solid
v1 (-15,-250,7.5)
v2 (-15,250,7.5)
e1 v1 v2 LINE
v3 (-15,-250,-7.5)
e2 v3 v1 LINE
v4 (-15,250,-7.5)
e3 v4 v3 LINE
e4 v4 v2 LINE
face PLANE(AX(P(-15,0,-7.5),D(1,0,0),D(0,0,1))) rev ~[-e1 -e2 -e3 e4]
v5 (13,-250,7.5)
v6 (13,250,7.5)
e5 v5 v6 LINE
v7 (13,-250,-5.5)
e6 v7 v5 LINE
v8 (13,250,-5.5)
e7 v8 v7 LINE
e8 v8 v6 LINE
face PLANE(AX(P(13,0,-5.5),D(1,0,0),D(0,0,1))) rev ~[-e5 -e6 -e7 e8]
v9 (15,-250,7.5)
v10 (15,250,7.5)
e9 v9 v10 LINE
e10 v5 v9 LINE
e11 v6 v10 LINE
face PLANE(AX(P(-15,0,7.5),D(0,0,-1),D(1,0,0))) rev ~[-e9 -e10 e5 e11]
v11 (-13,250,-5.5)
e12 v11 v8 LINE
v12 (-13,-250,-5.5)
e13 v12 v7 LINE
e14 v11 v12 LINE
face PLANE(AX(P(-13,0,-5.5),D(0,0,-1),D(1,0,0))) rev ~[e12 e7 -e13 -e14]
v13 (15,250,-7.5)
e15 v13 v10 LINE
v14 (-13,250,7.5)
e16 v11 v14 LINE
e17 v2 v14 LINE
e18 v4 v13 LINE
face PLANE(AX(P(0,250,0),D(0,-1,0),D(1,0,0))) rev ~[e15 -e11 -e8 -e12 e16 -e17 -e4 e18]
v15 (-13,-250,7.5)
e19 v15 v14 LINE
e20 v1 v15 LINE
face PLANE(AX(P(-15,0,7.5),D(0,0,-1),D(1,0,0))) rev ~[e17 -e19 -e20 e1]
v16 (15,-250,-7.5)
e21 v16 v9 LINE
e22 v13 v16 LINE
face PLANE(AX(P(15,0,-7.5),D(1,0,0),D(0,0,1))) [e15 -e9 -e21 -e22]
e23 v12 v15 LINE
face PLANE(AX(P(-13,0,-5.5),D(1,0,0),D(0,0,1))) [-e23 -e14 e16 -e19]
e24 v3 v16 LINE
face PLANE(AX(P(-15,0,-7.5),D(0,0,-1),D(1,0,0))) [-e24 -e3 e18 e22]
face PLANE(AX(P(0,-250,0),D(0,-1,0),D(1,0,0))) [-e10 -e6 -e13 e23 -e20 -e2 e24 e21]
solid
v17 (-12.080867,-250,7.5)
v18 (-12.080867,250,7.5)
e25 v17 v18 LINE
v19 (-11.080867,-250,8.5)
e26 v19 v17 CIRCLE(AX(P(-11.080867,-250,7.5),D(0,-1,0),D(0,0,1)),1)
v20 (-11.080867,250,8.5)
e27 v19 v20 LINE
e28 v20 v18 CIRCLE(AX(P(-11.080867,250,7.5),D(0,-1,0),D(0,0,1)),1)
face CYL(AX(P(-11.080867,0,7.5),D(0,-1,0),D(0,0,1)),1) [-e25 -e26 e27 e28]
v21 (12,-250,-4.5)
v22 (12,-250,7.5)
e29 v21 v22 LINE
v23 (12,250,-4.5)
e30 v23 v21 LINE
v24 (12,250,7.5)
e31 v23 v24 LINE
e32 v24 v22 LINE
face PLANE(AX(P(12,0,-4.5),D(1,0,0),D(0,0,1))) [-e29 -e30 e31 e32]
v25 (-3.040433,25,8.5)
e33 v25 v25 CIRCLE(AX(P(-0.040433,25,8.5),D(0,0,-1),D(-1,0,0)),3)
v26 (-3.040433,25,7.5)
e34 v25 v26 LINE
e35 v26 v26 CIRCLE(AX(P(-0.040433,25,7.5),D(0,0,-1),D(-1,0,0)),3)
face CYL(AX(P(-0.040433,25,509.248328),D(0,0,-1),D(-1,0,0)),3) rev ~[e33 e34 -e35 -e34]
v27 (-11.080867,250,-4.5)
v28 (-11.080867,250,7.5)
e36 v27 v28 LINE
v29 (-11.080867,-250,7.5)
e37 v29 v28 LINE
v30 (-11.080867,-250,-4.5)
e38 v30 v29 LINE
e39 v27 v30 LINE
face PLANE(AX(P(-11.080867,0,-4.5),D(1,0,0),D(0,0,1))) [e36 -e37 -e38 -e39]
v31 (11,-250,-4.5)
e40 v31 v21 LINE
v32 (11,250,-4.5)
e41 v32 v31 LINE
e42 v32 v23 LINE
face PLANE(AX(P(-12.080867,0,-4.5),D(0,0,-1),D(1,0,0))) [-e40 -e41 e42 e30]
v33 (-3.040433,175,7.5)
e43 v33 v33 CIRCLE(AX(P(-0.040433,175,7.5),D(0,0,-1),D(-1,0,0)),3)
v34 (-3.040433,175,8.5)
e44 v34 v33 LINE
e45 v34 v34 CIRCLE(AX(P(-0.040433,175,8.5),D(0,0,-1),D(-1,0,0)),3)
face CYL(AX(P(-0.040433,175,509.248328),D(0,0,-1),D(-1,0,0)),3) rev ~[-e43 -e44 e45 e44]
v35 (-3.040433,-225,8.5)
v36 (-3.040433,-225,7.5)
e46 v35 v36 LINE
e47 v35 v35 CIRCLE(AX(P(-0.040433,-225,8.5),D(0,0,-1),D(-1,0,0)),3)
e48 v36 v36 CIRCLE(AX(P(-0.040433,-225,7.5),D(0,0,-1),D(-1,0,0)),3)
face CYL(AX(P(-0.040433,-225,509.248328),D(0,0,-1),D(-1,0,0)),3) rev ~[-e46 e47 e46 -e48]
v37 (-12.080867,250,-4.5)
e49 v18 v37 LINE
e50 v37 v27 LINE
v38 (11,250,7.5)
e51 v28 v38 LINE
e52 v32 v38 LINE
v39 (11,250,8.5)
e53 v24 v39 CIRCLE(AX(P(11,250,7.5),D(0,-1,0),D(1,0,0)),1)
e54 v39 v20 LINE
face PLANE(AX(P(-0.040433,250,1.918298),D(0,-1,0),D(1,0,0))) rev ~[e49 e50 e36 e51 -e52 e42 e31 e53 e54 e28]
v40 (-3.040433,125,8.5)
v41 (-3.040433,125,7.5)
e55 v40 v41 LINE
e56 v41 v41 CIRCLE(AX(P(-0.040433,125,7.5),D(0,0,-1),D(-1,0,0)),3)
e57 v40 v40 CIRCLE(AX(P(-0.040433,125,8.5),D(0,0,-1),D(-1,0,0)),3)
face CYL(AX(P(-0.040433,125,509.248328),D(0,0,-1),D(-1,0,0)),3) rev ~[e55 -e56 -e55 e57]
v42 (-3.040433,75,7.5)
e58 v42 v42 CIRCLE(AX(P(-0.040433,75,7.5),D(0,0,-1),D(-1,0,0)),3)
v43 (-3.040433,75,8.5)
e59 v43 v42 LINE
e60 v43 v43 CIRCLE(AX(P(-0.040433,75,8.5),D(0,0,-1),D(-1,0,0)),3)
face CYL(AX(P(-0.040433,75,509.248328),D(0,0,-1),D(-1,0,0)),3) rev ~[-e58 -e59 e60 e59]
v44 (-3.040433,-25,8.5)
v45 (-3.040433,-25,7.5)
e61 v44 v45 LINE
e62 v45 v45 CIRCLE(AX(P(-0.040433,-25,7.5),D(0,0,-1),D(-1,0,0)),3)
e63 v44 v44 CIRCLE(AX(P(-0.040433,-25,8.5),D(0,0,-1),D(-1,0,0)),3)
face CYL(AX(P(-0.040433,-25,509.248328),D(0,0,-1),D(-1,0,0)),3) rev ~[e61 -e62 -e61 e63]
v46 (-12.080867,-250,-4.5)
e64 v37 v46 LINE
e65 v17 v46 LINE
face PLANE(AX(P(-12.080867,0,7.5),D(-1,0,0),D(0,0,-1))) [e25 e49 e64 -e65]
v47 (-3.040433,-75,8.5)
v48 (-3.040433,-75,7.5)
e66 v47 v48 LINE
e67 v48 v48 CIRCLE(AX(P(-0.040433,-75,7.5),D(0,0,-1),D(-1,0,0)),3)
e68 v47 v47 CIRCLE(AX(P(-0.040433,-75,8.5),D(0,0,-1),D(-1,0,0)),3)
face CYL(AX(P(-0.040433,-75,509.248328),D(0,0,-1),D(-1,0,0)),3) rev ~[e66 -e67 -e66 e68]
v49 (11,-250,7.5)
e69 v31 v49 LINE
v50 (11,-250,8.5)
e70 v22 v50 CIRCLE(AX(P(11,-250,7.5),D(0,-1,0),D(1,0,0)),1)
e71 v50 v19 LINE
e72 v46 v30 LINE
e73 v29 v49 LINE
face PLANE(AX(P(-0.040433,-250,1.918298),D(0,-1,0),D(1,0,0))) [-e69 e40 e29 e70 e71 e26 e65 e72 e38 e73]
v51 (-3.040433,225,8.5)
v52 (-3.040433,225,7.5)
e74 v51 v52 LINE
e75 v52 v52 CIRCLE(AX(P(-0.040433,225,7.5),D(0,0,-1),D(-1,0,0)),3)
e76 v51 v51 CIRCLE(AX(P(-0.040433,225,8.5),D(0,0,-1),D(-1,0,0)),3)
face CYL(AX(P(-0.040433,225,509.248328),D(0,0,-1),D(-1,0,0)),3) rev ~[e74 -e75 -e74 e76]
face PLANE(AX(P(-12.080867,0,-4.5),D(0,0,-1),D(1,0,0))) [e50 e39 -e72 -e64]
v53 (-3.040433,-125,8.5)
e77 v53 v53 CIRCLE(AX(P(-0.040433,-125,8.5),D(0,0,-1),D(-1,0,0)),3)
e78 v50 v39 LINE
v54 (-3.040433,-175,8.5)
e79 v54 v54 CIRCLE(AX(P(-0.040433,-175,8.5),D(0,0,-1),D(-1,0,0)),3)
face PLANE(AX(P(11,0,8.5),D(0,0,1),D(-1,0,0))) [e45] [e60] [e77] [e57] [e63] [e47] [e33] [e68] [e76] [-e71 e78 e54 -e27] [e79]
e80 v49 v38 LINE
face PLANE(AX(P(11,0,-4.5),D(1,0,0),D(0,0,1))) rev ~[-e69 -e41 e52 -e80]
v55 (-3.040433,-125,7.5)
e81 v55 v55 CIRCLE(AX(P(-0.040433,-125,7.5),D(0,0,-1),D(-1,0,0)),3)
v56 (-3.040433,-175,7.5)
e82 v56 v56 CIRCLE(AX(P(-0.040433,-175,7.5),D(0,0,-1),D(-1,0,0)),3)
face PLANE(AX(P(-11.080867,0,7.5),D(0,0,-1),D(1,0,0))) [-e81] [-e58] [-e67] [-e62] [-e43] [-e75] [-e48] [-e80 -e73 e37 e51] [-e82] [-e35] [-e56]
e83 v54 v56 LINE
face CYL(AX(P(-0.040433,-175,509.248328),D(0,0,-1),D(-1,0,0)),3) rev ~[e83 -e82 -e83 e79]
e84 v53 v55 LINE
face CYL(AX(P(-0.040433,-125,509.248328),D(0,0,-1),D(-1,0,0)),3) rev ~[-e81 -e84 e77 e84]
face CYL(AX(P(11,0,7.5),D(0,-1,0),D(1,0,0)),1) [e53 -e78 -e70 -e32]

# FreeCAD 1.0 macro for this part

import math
import FreeCAD as App
import Part
import Sketcher
Q = App.Units.Quantity

doc = App.newDocument("Part")
body = doc.addObject("PartDesign::Body", "Body")

sketch1 = body.newObject("Sketcher::SketchObject", "Sketch")
sketch1.AttachmentSupport = (doc.getObject("XZ_Plane"), [""])
sketch1.MapMode = "FlatFace"
sketch1.addGeometry(Part.LineSegment(App.Vector(-15, 8, 0), App.Vector(-15, -8, 0)), False)
sketch1.addGeometry(Part.LineSegment(App.Vector(-15, -8, 0), App.Vector(15, -8, 0)), False)
sketch1.addGeometry(Part.LineSegment(App.Vector(15, -8, 0), App.Vector(15, 8, 0)), False)
sketch1.addGeometry(Part.LineSegment(App.Vector(15, 8, 0), App.Vector(-15, 8, 0)), False)
sketch1.addConstraint(Sketcher.Constraint("Coincident", 0, 2, 1, 1))
sketch1.addConstraint(Sketcher.Constraint("Coincident", 1, 2, 2, 1))
sketch1.addConstraint(Sketcher.Constraint("Coincident", 2, 2, 3, 1))
sketch1.addConstraint(Sketcher.Constraint("Coincident", 3, 2, 0, 1))
sketch1.addConstraint(Sketcher.Constraint("Vertical", 0))
sketch1.addConstraint(Sketcher.Constraint("Horizontal", 1))
sketch1.addConstraint(Sketcher.Constraint("Vertical", 2))
sketch1.addConstraint(Sketcher.Constraint("Horizontal", 3))
sketch1.addConstraint(Sketcher.Constraint("Symmetric", 0, 2, 2, 2, -1, 1))
sketch1.addConstraint(Sketcher.Constraint("DistanceX", 1, 1, 1, 2, Q("30 mm")))
sketch1.addConstraint(Sketcher.Constraint("DistanceY", 0, 2, 0, 1, Q("15 mm")))
pad1 = body.newObject("PartDesign::Pad", "Pad")
pad1.Profile = sketch1
pad1.Length = 500
pad1.Midplane = True

sketch2 = body.newObject("Sketcher::SketchObject", "Sketch001")
sketch2.AttachmentSupport = (doc.getObject("XZ_Plane"), [""])
sketch2.MapMode = "FlatFace"
sketch2.addGeometry(Part.LineSegment(App.Vector(-13, 8, 0), App.Vector(-13, -6, 0)), False)
sketch2.addGeometry(Part.LineSegment(App.Vector(-13, -6, 0), App.Vector(13, -6, 0)), False)
sketch2.addGeometry(Part.LineSegment(App.Vector(13, -6, 0), App.Vector(13, 8, 0)), False)
sketch2.addGeometry(Part.LineSegment(App.Vector(13, 8, 0), App.Vector(-13, 8, 0)), False)
sketch2.addConstraint(Sketcher.Constraint("Coincident", 0, 2, 1, 1))
sketch2.addConstraint(Sketcher.Constraint("Coincident", 1, 2, 2, 1))
sketch2.addConstraint(Sketcher.Constraint("Coincident", 2, 2, 3, 1))
sketch2.addConstraint(Sketcher.Constraint("Coincident", 3, 2, 0, 1))
sketch2.addConstraint(Sketcher.Constraint("Vertical", 0))
sketch2.addConstraint(Sketcher.Constraint("Horizontal", 1))
sketch2.addConstraint(Sketcher.Constraint("Vertical", 2))
sketch2.addConstraint(Sketcher.Constraint("Horizontal", 3))
sketch2.addConstraint(Sketcher.Constraint("DistanceX", 1, 1, 1, 2, Q("26 mm")))
sketch2.addConstraint(Sketcher.Constraint("DistanceY", 0, 2, 0, 1, Q("13 mm")))
sketch2.addConstraint(Sketcher.Constraint("DistanceX", 0, 2, -1, 1, Q("13 mm")))
sketch2.addConstraint(Sketcher.Constraint("DistanceY", 0, 2, -1, 1, Q("5.5 mm")))
pocket1 = body.newObject("PartDesign::Pocket", "Pocket")
pocket1.Profile = sketch2
pocket1.Length = 600
pocket1.Midplane = True
body2 = doc.addObject("PartDesign::Body", "Body001")

sketch3 = body2.newObject("Sketcher::SketchObject", "Sketch002")
sketch3.AttachmentSupport = (doc.getObject("XZ_Plane001"), [""])
sketch3.MapMode = "FlatFace"
sketch3.addGeometry(Part.LineSegment(App.Vector(-12.1, 7.5, 0), App.Vector(-12.1, -4.5, 0)), False)
sketch3.addGeometry(Part.LineSegment(App.Vector(-12.1, -4.5, 0), App.Vector(12, -4.5, 0)), False)
sketch3.addGeometry(Part.LineSegment(App.Vector(12, -4.5, 0), App.Vector(12, 7.5, 0)), False)
sketch3.addGeometry(Part.ArcOfCircle(Part.Circle(App.Vector(11, 7.5, 0), App.Vector(0, 0, 1), 1), math.radians(0), math.radians(90)), False)
sketch3.addGeometry(Part.LineSegment(App.Vector(11, 8.5, 0), App.Vector(-11.1, 8.5, 0)), False)
sketch3.addGeometry(Part.ArcOfCircle(Part.Circle(App.Vector(-11.1, 7.5, 0), App.Vector(0, 0, 1), 1), math.radians(90), math.radians(180)), False)
sketch3.addConstraint(Sketcher.Constraint("Coincident", 0, 2, 1, 1))
sketch3.addConstraint(Sketcher.Constraint("Coincident", 1, 2, 2, 1))
sketch3.addConstraint(Sketcher.Constraint("Tangent", 2, 2, 3, 1))
sketch3.addConstraint(Sketcher.Constraint("Tangent", 3, 2, 4, 1))
sketch3.addConstraint(Sketcher.Constraint("Tangent", 4, 2, 5, 1))
sketch3.addConstraint(Sketcher.Constraint("Tangent", 5, 2, 0, 1))
sketch3.addConstraint(Sketcher.Constraint("Vertical", 0))
sketch3.addConstraint(Sketcher.Constraint("Horizontal", 1))
sketch3.addConstraint(Sketcher.Constraint("Vertical", 2))
sketch3.addConstraint(Sketcher.Constraint("Horizontal", 4))
sketch3.addConstraint(Sketcher.Constraint("Equal", 3, 5))
sketch3.addConstraint(Sketcher.Constraint("Radius", 3, Q("1 mm")))
sketch3.addConstraint(Sketcher.Constraint("DistanceY", 0, 2, 0, 1, Q("12 mm")))
sketch3.addConstraint(Sketcher.Constraint("DistanceX", -1, 1, 3, 3, Q("11 mm")))
sketch3.addConstraint(Sketcher.Constraint("DistanceY", -1, 1, 3, 3, Q("7.5 mm")))
sketch3.addConstraint(Sketcher.Constraint("DistanceX", 1, 1, 1, 2, Q("24.080867 mm")))
pad2 = body2.newObject("PartDesign::Pad", "Pad001")
pad2.Profile = sketch3
pad2.Length = 500
pad2.Midplane = True

sketch4 = body2.newObject("Sketcher::SketchObject", "Sketch003")
sketch4.AttachmentSupport = (doc.getObject("XZ_Plane001"), [""])
sketch4.MapMode = "FlatFace"
sketch4.addGeometry(Part.LineSegment(App.Vector(-11, 8, 0), App.Vector(-11, -4, 0)), False)
sketch4.addGeometry(Part.LineSegment(App.Vector(-11, -4, 0), App.Vector(11, -4, 0)), False)
sketch4.addGeometry(Part.LineSegment(App.Vector(11, -4, 0), App.Vector(11, 8, 0)), False)
sketch4.addGeometry(Part.LineSegment(App.Vector(11, 8, 0), App.Vector(-11, 8, 0)), False)
sketch4.addConstraint(Sketcher.Constraint("Coincident", 0, 2, 1, 1))
sketch4.addConstraint(Sketcher.Constraint("Coincident", 1, 2, 2, 1))
sketch4.addConstraint(Sketcher.Constraint("Coincident", 2, 2, 3, 1))
sketch4.addConstraint(Sketcher.Constraint("Coincident", 3, 2, 0, 1))
sketch4.addConstraint(Sketcher.Constraint("Vertical", 0))
sketch4.addConstraint(Sketcher.Constraint("Horizontal", 1))
sketch4.addConstraint(Sketcher.Constraint("Vertical", 2))
sketch4.addConstraint(Sketcher.Constraint("Horizontal", 3))
sketch4.addConstraint(Sketcher.Constraint("DistanceY", 0, 2, 0, 1, Q("12 mm")))
sketch4.addConstraint(Sketcher.Constraint("DistanceX", -1, 1, 1, 2, Q("11 mm")))
sketch4.addConstraint(Sketcher.Constraint("DistanceY", 0, 2, -1, 1, Q("4.5 mm")))
sketch4.addConstraint(Sketcher.Constraint("DistanceX", 1, 1, 1, 2, Q("22.080867 mm")))
pocket2 = body2.newObject("PartDesign::Pocket", "Pocket001")
pocket2.Profile = sketch4
pocket2.Length = 600
pocket2.Midplane = True

sketch5 = body2.newObject("Sketcher::SketchObject", "Sketch004")
sketch5.AttachmentSupport = (doc.getObject("XY_Plane001"), [""])
sketch5.MapMode = "FlatFace"
sketch5.AttachmentOffset = App.Placement(App.Vector(0, 0, 8.5), App.Rotation())
sketch5.addGeometry(Part.Circle(App.Vector(0, -225, 0), App.Vector(0, 0, 1), 3), False)
sketch5.addGeometry(Part.Circle(App.Vector(0, -175, 0), App.Vector(0, 0, 1), 3), False)
sketch5.addGeometry(Part.Circle(App.Vector(0, -125, 0), App.Vector(0, 0, 1), 3), False)
sketch5.addGeometry(Part.Circle(App.Vector(0, -75, 0), App.Vector(0, 0, 1), 3), False)
sketch5.addGeometry(Part.Circle(App.Vector(0, -25, 0), App.Vector(0, 0, 1), 3), False)
sketch5.addGeometry(Part.Circle(App.Vector(0, 25, 0), App.Vector(0, 0, 1), 3), False)
sketch5.addGeometry(Part.Circle(App.Vector(0, 75, 0), App.Vector(0, 0, 1), 3), False)
sketch5.addGeometry(Part.Circle(App.Vector(0, 125, 0), App.Vector(0, 0, 1), 3), False)
sketch5.addGeometry(Part.Circle(App.Vector(0, 175, 0), App.Vector(0, 0, 1), 3), False)
sketch5.addGeometry(Part.Circle(App.Vector(0, 225, 0), App.Vector(0, 0, 1), 3), False)
sketch5.addConstraint(Sketcher.Constraint("Equal", 0, 1))
sketch5.addConstraint(Sketcher.Constraint("Equal", 1, 2))
sketch5.addConstraint(Sketcher.Constraint("Equal", 2, 3))
sketch5.addConstraint(Sketcher.Constraint("Equal", 3, 4))
sketch5.addConstraint(Sketcher.Constraint("Equal", 4, 5))
sketch5.addConstraint(Sketcher.Constraint("Equal", 5, 6))
sketch5.addConstraint(Sketcher.Constraint("Equal", 6, 7))
sketch5.addConstraint(Sketcher.Constraint("Equal", 7, 8))
sketch5.addConstraint(Sketcher.Constraint("Equal", 8, 9))
sketch5.addConstraint(Sketcher.Constraint("Symmetric", 4, 3, 5, 3, -1))
sketch5.addConstraint(Sketcher.Constraint("Symmetric", 3, 3, 6, 3, -1))
sketch5.addConstraint(Sketcher.Constraint("Symmetric", 2, 3, 7, 3, -1))
sketch5.addConstraint(Sketcher.Constraint("Symmetric", 1, 3, 8, 3, -1))
sketch5.addConstraint(Sketcher.Constraint("Symmetric", 0, 3, 9, 3, -1))
sketch5.addConstraint(Sketcher.Constraint("Vertical", 0, 3, 1, 3))
sketch5.addConstraint(Sketcher.Constraint("Vertical", 1, 3, 2, 3))
sketch5.addConstraint(Sketcher.Constraint("Vertical", 2, 3, 3, 3))
sketch5.addConstraint(Sketcher.Constraint("Vertical", 3, 3, 4, 3))
sketch5.addConstraint(Sketcher.Constraint("Diameter", 0, Q("6 mm")))
sketch5.addConstraint(Sketcher.Constraint("DistanceY", 0, 3, -1, 1, Q("225 mm")))
sketch5.addConstraint(Sketcher.Constraint("DistanceY", 1, 3, -1, 1, Q("175 mm")))
sketch5.addConstraint(Sketcher.Constraint("DistanceY", 2, 3, -1, 1, Q("125 mm")))
sketch5.addConstraint(Sketcher.Constraint("DistanceY", 3, 3, -1, 1, Q("75 mm")))
sketch5.addConstraint(Sketcher.Constraint("DistanceY", 4, 3, -1, 1, Q("25 mm")))
sketch5.addConstraint(Sketcher.Constraint("DistanceX", 0, 3, -1, 1, Q("0.040433 mm")))
doc.recompute()
hole = body2.newObject("PartDesign::Hole", "Hole")
hole.Profile = sketch5
hole.ThreadType = "None"
hole.Diameter = 6
hole.DepthType = "ThroughAll"

doc.recompute()
